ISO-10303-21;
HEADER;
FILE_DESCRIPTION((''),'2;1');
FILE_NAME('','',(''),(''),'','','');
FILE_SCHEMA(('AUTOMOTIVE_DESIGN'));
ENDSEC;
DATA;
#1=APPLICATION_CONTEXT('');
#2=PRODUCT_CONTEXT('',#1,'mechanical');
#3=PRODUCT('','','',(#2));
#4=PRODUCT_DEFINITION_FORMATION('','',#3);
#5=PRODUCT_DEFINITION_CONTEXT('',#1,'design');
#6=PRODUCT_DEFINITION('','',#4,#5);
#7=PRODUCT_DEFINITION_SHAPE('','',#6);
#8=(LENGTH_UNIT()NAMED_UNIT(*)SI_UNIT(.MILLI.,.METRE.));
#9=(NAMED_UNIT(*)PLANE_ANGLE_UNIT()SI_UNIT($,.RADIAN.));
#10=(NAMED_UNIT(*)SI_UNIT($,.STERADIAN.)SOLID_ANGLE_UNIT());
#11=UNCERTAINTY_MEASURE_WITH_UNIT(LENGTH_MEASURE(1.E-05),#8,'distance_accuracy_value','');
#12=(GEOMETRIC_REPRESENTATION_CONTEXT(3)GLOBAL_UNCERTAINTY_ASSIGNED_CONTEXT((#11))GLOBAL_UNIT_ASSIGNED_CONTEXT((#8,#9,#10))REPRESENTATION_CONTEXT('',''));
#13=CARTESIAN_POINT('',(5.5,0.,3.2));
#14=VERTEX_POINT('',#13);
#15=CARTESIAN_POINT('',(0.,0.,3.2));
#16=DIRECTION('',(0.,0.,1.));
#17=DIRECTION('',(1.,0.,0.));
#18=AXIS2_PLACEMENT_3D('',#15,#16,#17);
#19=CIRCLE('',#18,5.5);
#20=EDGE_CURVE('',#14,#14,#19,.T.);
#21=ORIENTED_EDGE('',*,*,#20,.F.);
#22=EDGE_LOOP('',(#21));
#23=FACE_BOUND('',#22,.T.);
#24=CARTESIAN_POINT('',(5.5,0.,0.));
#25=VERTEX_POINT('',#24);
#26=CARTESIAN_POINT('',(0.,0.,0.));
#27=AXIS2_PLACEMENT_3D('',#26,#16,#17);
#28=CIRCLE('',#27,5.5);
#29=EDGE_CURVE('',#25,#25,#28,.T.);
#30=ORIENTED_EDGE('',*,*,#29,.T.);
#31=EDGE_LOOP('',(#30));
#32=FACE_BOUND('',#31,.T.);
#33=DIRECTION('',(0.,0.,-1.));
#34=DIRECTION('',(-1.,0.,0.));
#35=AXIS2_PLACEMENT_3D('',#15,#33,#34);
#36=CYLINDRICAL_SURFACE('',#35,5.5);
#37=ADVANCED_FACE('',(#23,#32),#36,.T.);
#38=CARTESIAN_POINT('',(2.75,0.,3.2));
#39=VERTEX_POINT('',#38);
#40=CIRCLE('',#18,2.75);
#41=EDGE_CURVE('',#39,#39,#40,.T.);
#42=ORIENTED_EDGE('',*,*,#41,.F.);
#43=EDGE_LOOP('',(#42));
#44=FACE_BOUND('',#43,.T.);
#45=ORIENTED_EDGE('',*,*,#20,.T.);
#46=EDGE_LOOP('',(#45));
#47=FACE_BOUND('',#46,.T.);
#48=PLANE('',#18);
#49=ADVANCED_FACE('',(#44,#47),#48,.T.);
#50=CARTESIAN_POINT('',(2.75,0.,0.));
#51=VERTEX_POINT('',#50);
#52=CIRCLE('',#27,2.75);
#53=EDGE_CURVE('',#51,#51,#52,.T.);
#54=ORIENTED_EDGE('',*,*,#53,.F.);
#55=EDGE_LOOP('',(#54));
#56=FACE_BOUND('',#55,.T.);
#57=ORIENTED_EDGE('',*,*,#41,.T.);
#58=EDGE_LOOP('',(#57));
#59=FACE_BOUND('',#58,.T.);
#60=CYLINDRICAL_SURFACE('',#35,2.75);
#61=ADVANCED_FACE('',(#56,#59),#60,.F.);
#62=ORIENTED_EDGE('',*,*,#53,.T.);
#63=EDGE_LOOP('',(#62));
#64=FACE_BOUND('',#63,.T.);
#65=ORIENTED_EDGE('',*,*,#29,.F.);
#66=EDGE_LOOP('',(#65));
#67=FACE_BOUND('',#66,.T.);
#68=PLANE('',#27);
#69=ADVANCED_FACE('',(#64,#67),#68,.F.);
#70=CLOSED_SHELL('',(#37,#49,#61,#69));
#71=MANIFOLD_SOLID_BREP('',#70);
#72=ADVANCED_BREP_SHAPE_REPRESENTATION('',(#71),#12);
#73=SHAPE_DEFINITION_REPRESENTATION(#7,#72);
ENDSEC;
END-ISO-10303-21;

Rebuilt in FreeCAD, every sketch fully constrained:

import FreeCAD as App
import Part
import Sketcher
Q = App.Units.Quantity

doc = App.newDocument("Part")
body = doc.addObject("PartDesign::Body", "Body")

sketch1 = body.newObject("Sketcher::SketchObject", "Sketch")
sketch1.AttachmentSupport = (doc.getObject("XY_Plane"), [""])
sketch1.MapMode = "FlatFace"
sketch1.addGeometry(Part.Circle(App.Vector(0, 0, 0), App.Vector(0, 0, 1), 5.5), False)
sketch1.addGeometry(Part.Circle(App.Vector(0, 0, 0), App.Vector(0, 0, 1), 2.8), False)
sketch1.addConstraint(Sketcher.Constraint("Coincident", 0, 3, -1, 1))
sketch1.addConstraint(Sketcher.Constraint("Coincident", 1, 3, -1, 1))
sketch1.addConstraint(Sketcher.Constraint("Diameter", 0, Q("11 mm")))
sketch1.addConstraint(Sketcher.Constraint("Diameter", 1, Q("5.5 mm")))
pad1 = body.newObject("PartDesign::Pad", "Pad")
pad1.Profile = sketch1
pad1.Length = 3.2

doc.recompute()
